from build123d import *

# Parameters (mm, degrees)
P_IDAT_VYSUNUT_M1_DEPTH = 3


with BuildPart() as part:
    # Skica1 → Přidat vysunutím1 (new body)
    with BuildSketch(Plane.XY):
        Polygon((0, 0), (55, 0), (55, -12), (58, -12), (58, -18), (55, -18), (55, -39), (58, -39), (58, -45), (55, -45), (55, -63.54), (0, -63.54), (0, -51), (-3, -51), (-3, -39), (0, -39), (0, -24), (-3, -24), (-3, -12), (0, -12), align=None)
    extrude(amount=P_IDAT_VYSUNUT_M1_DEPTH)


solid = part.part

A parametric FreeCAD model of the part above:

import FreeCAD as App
import Part
import Sketcher

V = App.Vector
Q = App.Units.Quantity


def add_polygon(sketch, points):
    """Adds a closed chain of lines whose ends are joined by coincident constraints."""
    first, n = sketch.GeometryCount, len(points)
    for a, b in zip(points, points[1:] + points[:1]):
        sketch.addGeometry(Part.LineSegment(App.Vector(*a, 0), App.Vector(*b, 0)), False)
    for i in range(n):
        sketch.addConstraint(Sketcher.Constraint("Coincident", first + i, 2, first + (i + 1) % n, 1))

doc = App.newDocument("Part")
params = doc.addObject("Spreadsheet::Sheet", "Params")
for row, (alias, value) in enumerate([
    ("sketch1_width", "55 mm"),
    ("sketch1_width2", "3 mm"),
    ("sketch1_height", "12 mm"),
    ("sketch1_height2", "15 mm"),
    ("sketch1_height3", "6 mm"),
    ("pad1_length", "3 mm"),
], start=1):
    params.set(f"A{row}", alias)
    params.set(f"B{row}", "=" + value)
    params.setAlias(f"B{row}", alias)

body = doc.addObject("PartDesign::Body", "Body")

# Sketch on XY plane
sketch1 = body.newObject("Sketcher::SketchObject", "Sketch")
sketch1.AttachmentSupport = (doc.getObject("XY_Plane"), [""])
sketch1.MapMode = "FlatFace"
add_polygon(sketch1, [(55, 0), (0, 0), (0, -12), (-3, -12), (-3, -24), (0, -24), (0, -39), (-3, -39), (-3, -51), (0, -51), (0, -63.5), (55, -63.5), (55, -45), (58, -45), (58, -39), (55, -39), (55, -18), (58, -18), (58, -12), (55, -12)])  # lines 0-19
sketch1.addConstraint(Sketcher.Constraint("Horizontal", 0))
sketch1.addConstraint(Sketcher.Constraint("Vertical", 1))
sketch1.addConstraint(Sketcher.Constraint("Horizontal", 2))
sketch1.addConstraint(Sketcher.Constraint("Vertical", 3))
sketch1.addConstraint(Sketcher.Constraint("Horizontal", 4))
sketch1.addConstraint(Sketcher.Constraint("Vertical", 5))
sketch1.addConstraint(Sketcher.Constraint("Horizontal", 6))
sketch1.addConstraint(Sketcher.Constraint("Vertical", 7))
sketch1.addConstraint(Sketcher.Constraint("Horizontal", 8))
sketch1.addConstraint(Sketcher.Constraint("Vertical", 9))
sketch1.addConstraint(Sketcher.Constraint("Horizontal", 10))
sketch1.addConstraint(Sketcher.Constraint("Vertical", 11))
sketch1.addConstraint(Sketcher.Constraint("Horizontal", 12))
sketch1.addConstraint(Sketcher.Constraint("Vertical", 13))
sketch1.addConstraint(Sketcher.Constraint("Horizontal", 14))
sketch1.addConstraint(Sketcher.Constraint("Vertical", 15))
sketch1.addConstraint(Sketcher.Constraint("Horizontal", 16))
sketch1.addConstraint(Sketcher.Constraint("Vertical", 17))
sketch1.addConstraint(Sketcher.Constraint("Horizontal", 18))
sketch1.addConstraint(Sketcher.Constraint("Vertical", 19))
sketch1.addConstraint(Sketcher.Constraint("Coincident", 0, 2, -1, 1))
sketch1.addConstraint(Sketcher.Constraint("PointOnObject", 4, 2, -2))
sketch1.addConstraint(Sketcher.Constraint("PointOnObject", 8, 2, -2))
sketch1.addConstraint(Sketcher.Constraint("Horizontal", 6, 2, 13, 2))
sketch1.addConstraint(Sketcher.Constraint("Horizontal", 2, 2, 17, 2))
sketch1.addConstraint(Sketcher.Constraint("Vertical", 3, 2, 6, 2))
sketch1.addConstraint(Sketcher.Constraint("Vertical", 11, 2, 14, 2))
sketch1.addConstraint(Sketcher.Constraint("Vertical", 13, 2, 16, 2))
sketch1.addConstraint(Sketcher.Constraint("Vertical", 15, 2, 18, 2))
sketch1.addConstraint(Sketcher.Constraint("Equal", 8, 12))
sketch1.addConstraint(Sketcher.Constraint("Equal", 1, 3))
sketch1.addConstraint(Sketcher.Constraint("Equal", 3, 7))
sketch1.addConstraint(Sketcher.Constraint("Equal", 13, 17))
sketch1.addConstraint(Sketcher.Constraint("DistanceX", 0, 2, 0, 1, Q("55 mm")))
sketch1.addConstraint(Sketcher.Constraint("DistanceX", 2, 2, 2, 1, Q("3 mm")))
sketch1.addConstraint(Sketcher.Constraint("DistanceY", 1, 2, 1, 1, Q("12 mm")))
sketch1.addConstraint(Sketcher.Constraint("DistanceY", 5, 2, 5, 1, Q("15 mm")))
sketch1.addConstraint(Sketcher.Constraint("DistanceY", 13, 1, 13, 2, Q("6 mm")))
sketch1.addConstraint(Sketcher.Constraint("DistanceY", 9, 2, 9, 1, Q("12.54 mm")))
sketch1.setExpression("Constraints[53]", "Params.sketch1_width")
sketch1.setExpression("Constraints[54]", "Params.sketch1_width2")
sketch1.setExpression("Constraints[55]", "Params.sketch1_height")
sketch1.setExpression("Constraints[56]", "Params.sketch1_height2")
sketch1.setExpression("Constraints[57]", "Params.sketch1_height3")
pad1 = body.newObject("PartDesign::Pad", "Pad")
pad1.Profile = sketch1
pad1.setExpression("Length", "Params.pad1_length")

doc.recompute()
